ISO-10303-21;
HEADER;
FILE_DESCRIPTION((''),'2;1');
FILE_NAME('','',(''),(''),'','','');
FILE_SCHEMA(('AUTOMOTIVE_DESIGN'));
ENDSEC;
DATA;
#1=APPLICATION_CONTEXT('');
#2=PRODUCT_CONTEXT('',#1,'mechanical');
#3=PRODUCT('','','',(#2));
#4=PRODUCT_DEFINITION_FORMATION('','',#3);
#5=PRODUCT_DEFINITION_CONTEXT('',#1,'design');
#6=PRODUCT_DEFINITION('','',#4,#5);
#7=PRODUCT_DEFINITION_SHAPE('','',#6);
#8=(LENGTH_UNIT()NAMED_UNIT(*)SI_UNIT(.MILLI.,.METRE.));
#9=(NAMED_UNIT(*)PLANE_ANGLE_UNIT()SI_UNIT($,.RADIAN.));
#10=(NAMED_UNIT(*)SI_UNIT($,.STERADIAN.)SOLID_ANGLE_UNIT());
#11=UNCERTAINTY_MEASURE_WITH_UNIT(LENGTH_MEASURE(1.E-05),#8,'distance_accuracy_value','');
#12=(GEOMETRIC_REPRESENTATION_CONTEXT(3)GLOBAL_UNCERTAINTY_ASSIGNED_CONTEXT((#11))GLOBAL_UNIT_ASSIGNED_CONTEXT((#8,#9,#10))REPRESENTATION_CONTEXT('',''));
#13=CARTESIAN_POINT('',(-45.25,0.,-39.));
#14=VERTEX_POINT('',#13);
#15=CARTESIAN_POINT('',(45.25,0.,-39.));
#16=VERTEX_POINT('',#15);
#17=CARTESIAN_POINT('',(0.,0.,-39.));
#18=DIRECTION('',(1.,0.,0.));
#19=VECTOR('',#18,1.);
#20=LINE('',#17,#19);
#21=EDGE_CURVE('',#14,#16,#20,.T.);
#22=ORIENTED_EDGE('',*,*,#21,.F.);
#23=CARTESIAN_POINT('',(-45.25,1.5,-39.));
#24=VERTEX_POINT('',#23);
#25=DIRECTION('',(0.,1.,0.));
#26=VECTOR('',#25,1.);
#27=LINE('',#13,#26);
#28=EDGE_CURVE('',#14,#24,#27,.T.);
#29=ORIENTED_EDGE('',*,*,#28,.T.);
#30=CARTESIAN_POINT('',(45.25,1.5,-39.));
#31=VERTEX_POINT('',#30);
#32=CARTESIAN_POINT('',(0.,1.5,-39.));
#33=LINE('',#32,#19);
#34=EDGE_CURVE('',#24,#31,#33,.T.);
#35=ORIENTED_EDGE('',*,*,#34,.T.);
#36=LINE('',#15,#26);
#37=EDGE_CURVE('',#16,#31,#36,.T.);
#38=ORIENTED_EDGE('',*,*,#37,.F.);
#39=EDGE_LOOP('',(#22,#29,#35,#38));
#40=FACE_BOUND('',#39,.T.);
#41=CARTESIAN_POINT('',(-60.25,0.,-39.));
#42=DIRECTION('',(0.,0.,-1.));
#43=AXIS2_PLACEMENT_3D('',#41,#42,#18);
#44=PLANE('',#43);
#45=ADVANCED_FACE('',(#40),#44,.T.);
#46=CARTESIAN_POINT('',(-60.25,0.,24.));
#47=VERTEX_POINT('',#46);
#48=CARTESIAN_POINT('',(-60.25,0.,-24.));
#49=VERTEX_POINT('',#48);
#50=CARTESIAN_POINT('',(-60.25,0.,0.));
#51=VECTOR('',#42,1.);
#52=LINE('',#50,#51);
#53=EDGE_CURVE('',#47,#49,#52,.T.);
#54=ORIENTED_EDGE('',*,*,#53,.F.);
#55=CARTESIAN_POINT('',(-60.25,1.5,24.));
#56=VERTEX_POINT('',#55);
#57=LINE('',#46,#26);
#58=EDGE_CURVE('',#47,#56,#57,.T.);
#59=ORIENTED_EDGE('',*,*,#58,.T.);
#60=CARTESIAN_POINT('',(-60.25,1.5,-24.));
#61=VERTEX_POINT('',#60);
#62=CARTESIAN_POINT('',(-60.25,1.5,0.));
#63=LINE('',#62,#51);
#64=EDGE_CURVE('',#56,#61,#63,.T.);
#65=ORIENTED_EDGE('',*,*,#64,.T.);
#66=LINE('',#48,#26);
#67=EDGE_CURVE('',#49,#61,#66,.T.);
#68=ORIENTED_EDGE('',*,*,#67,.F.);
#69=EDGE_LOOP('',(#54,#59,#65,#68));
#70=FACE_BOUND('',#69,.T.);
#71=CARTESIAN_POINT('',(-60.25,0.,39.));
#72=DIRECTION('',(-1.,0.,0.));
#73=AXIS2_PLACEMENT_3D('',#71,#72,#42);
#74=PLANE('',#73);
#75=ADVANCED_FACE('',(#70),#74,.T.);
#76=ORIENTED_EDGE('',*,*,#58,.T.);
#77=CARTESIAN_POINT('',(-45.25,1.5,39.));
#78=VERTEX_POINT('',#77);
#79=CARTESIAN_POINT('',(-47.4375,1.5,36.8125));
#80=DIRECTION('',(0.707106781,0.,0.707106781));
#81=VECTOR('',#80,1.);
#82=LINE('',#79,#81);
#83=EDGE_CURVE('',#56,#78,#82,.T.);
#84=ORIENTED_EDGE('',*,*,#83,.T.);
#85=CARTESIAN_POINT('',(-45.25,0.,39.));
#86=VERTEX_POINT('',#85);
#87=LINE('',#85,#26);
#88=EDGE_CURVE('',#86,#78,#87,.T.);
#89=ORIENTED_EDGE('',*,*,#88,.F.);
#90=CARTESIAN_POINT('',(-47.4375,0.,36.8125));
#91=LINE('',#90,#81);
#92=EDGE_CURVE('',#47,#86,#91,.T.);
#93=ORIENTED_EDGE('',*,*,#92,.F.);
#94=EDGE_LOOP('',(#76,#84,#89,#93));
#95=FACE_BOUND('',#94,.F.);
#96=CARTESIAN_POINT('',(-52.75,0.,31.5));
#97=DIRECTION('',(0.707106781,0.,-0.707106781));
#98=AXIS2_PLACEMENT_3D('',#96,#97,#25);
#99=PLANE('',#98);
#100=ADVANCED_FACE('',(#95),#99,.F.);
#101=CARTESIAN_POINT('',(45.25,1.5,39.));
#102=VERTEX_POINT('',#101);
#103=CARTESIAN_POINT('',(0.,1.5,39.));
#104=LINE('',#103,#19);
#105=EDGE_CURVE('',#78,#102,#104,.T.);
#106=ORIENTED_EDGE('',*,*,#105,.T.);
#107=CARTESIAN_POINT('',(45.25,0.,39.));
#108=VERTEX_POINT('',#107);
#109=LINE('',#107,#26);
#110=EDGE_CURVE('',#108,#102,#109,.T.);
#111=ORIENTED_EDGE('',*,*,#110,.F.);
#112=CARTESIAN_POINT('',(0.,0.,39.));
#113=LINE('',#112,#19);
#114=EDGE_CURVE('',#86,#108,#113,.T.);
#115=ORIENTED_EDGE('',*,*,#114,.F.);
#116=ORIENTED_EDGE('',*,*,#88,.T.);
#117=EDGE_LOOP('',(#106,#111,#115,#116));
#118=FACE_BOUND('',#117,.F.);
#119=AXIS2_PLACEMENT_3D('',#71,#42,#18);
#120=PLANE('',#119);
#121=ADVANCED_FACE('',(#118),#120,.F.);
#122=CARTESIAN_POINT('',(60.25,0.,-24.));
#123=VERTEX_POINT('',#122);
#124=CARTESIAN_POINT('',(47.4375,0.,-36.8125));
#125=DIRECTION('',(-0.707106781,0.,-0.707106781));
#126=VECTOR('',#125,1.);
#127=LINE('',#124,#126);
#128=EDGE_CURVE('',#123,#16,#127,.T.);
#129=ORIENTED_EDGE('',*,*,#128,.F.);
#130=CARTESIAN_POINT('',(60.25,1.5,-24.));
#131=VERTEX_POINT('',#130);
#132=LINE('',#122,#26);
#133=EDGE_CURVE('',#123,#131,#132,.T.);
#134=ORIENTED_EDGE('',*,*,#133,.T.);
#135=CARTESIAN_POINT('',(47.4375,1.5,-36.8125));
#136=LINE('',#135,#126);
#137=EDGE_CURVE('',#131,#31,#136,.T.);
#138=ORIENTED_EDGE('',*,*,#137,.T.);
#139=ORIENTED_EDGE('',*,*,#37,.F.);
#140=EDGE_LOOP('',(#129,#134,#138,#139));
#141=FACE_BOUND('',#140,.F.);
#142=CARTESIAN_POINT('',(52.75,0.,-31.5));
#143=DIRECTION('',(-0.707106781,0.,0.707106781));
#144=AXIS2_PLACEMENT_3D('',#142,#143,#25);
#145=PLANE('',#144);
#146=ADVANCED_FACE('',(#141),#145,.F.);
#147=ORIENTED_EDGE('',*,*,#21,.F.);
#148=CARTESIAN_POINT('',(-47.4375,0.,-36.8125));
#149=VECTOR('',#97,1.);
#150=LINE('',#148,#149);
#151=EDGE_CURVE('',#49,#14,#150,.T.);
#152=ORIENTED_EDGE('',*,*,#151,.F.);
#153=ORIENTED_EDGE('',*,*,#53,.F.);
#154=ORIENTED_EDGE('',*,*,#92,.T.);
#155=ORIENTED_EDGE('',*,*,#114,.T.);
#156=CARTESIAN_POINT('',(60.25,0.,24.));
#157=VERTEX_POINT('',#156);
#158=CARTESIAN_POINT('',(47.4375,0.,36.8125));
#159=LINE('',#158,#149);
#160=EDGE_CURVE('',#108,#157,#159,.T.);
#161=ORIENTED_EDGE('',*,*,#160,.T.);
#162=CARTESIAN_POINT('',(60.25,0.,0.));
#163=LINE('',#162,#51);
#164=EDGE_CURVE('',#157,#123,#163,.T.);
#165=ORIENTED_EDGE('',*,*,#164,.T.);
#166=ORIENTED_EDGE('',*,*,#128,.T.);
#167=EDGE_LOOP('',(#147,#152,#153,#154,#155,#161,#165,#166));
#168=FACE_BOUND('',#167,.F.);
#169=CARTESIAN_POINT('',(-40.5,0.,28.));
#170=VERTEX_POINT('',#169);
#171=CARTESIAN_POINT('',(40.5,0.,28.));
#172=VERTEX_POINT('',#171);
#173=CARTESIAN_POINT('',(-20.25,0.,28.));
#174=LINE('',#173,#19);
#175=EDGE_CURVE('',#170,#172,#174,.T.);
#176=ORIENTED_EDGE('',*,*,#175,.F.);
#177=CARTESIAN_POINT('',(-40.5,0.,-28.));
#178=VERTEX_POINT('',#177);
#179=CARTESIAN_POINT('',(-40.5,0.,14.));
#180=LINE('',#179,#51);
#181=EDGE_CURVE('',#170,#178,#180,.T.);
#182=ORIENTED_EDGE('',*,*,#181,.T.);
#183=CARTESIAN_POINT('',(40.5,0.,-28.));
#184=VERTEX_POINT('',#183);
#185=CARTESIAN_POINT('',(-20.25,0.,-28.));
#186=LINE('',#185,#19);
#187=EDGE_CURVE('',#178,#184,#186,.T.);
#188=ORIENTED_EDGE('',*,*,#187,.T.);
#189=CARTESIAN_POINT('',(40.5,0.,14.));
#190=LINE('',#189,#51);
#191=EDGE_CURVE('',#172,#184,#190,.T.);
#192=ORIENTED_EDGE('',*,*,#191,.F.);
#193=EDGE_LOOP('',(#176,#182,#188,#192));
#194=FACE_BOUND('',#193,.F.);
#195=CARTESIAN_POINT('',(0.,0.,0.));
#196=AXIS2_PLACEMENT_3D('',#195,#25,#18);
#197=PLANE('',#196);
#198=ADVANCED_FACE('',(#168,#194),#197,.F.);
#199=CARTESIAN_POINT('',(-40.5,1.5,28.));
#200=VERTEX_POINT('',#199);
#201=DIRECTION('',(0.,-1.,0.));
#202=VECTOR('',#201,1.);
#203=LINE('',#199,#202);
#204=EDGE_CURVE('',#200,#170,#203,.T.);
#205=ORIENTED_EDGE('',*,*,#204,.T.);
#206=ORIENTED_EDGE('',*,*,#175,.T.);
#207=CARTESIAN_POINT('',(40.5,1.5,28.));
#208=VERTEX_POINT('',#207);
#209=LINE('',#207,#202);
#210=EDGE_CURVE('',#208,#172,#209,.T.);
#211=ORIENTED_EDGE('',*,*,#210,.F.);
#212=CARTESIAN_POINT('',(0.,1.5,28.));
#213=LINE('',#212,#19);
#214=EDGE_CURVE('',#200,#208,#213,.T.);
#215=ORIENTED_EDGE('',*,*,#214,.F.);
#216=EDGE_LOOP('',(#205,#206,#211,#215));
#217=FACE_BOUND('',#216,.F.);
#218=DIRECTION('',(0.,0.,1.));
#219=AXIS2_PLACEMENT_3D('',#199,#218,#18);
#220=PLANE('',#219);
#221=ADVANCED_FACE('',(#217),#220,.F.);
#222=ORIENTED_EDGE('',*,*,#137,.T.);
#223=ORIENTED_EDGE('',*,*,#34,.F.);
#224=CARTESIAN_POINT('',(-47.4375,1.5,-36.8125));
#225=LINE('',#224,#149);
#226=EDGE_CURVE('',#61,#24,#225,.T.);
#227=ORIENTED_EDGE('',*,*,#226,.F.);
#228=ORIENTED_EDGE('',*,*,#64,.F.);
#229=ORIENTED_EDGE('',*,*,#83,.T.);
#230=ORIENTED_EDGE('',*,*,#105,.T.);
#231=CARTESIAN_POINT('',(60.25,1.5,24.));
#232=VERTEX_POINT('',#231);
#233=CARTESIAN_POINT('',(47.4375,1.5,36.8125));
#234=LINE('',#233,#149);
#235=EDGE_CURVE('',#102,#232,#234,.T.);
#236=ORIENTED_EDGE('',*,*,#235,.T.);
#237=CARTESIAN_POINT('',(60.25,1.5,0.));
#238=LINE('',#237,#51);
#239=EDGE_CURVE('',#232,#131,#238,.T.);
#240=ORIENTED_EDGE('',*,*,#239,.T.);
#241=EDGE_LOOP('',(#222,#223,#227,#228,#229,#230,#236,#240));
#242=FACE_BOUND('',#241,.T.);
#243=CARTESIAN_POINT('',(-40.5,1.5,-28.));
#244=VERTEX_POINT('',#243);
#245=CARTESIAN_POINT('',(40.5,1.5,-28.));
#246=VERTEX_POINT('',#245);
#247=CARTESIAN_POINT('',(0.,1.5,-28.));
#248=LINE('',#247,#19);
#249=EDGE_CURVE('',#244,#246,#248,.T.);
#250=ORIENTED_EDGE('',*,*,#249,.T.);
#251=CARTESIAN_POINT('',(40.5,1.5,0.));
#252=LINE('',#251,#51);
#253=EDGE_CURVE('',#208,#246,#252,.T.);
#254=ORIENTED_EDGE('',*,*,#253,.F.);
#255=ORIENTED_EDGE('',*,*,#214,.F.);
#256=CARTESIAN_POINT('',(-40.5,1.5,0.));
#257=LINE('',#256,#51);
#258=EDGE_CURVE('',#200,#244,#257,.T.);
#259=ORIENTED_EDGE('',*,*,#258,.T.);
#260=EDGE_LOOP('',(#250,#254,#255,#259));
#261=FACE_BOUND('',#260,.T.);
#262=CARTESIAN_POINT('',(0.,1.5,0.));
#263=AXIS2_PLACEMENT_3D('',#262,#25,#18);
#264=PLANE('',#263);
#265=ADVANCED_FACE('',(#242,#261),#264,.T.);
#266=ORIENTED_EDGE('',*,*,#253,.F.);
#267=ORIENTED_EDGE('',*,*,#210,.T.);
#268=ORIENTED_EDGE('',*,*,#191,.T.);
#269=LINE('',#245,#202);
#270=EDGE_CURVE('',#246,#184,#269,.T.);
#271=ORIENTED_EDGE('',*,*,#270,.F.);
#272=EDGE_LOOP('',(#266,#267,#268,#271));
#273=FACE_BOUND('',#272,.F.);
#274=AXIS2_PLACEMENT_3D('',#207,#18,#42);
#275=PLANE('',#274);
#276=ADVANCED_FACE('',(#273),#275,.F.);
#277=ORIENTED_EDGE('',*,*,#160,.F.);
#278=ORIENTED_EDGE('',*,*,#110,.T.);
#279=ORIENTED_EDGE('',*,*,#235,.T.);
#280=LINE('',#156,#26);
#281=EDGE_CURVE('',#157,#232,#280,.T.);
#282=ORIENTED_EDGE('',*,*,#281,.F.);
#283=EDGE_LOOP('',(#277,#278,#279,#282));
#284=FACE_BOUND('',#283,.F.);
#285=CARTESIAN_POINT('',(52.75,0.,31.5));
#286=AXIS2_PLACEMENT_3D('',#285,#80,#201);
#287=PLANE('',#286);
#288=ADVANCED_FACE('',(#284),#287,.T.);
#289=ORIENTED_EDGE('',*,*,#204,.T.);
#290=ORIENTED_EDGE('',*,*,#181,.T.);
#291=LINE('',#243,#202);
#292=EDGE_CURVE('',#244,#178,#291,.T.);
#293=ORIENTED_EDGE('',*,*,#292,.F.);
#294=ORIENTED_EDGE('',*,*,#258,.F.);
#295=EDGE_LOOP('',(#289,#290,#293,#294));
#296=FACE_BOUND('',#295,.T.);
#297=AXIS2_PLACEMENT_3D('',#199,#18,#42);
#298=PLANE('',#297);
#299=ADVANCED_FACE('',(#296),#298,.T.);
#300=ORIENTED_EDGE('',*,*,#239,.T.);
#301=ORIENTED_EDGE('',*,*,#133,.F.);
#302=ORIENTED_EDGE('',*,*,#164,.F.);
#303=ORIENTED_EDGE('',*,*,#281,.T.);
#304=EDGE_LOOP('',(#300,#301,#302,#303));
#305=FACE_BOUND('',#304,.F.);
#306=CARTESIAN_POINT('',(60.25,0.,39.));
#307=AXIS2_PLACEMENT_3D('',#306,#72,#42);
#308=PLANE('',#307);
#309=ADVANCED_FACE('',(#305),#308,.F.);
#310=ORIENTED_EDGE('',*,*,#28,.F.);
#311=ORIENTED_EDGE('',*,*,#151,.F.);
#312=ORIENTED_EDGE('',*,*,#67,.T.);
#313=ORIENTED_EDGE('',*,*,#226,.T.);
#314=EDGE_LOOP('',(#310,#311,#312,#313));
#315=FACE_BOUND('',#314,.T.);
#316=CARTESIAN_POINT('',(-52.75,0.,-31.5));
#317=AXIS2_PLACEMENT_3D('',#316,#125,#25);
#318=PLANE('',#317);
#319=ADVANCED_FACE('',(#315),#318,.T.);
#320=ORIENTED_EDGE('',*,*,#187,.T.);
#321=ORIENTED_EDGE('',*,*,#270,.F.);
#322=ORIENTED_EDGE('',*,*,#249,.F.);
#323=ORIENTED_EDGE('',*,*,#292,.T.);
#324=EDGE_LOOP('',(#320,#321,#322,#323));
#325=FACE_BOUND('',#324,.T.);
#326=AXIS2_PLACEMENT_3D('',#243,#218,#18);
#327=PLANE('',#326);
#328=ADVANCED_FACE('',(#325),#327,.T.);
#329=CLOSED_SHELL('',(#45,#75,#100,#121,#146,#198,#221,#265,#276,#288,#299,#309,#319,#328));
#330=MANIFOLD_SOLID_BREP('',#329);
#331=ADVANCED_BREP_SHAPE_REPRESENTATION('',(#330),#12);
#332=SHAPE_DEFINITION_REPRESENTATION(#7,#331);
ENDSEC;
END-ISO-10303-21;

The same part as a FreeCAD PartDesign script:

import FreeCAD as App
import Part
import Sketcher

V = App.Vector


def edges_at(feature, points):
    """Names of the edges that pass closest to the given points."""
    edges = feature.Shape.Edges
    near = lambda p: min(range(len(edges)), key=lambda i: edges[i].distToShape(Part.Vertex(*p))[0])
    return sorted({f"Edge{near(p) + 1}" for p in points})


def add_polygon(sketch, points):
    """Adds a closed chain of lines whose ends are joined by coincident constraints."""
    first, n = sketch.GeometryCount, len(points)
    for a, b in zip(points, points[1:] + points[:1]):
        sketch.addGeometry(Part.LineSegment(App.Vector(*a, 0), App.Vector(*b, 0)), False)
    for i in range(n):
        sketch.addConstraint(Sketcher.Constraint("Coincident", first + i, 2, first + (i + 1) % n, 1))

doc = App.newDocument("Part")
params = doc.addObject("Spreadsheet::Sheet", "Params")
for row, (alias, value) in enumerate([
    ("sketch1_height", "78 mm"),
    ("sketch1_width", "120.5 mm"),
    ("pad1_length", "1.5 mm"),
    ("chamfer_size", "15 mm"),
    ("sketch2_width", "81 mm"),
    ("sketch2_height", "56 mm"),
    ("pocket1_length", "2 mm"),
], start=1):
    params.set(f"A{row}", alias)
    params.set(f"B{row}", "=" + value)
    params.setAlias(f"B{row}", alias)

body = doc.addObject("PartDesign::Body", "Body")

# Sketch on XZ plane
sketch1 = doc.addObject("Sketcher::SketchObject", "Sketch")
body.addObject(sketch1)
sketch1.AttachmentSupport = (doc.XZ_Plane, [""])
sketch1.MapMode = "FlatFace"
add_polygon(sketch1, [(-60.25, -39), (-60.25, 39), (60.25, 39), (60.25, -39)])  # lines 0-3
sketch1.addConstraint(Sketcher.Constraint("Vertical", 0))
sketch1.addConstraint(Sketcher.Constraint("Horizontal", 1))
sketch1.addConstraint(Sketcher.Constraint("Vertical", 2))
sketch1.addConstraint(Sketcher.Constraint("Horizontal", 3))
sketch1.addConstraint(Sketcher.Constraint("Symmetric", 0, 2, 2, 2, -1, 1))
sketch1.addConstraint(Sketcher.Constraint("DistanceY", 0, 1, 0, 2, 78.0))
sketch1.addConstraint(Sketcher.Constraint("DistanceX", 1, 1, 1, 2, 120.5))
sketch1.setExpression("Constraints[9]", "Params.sketch1_height")
sketch1.setExpression("Constraints[10]", "Params.sketch1_width")
pad1 = doc.addObject("PartDesign::Pad", "Pad")
body.addObject(pad1)
pad1.Profile = sketch1
pad1.setExpression("Length", "Params.pad1_length")
pad1.Reversed = True
doc.recompute()

chamfer = doc.addObject("PartDesign::Chamfer", "Chamfer")
body.addObject(chamfer)
chamfer.Base = (pad1, edges_at(pad1, [
    (60.25, 0.75, 39),
    (-60.25, 0.75, 39),
    (-60.25, 0.75, -39),
    (60.25, 0.75, -39),
]))
chamfer.setExpression("Size", "Params.chamfer_size")

# Sketch on XZ plane
sketch2 = doc.addObject("Sketcher::SketchObject", "Sketch001")
body.addObject(sketch2)
sketch2.AttachmentSupport = (doc.XZ_Plane, [""])
sketch2.MapMode = "FlatFace"
sketch2.AttachmentOffset = App.Placement(V(0, 0, -1.5), App.Rotation())
add_polygon(sketch2, [(-40.5, -28), (-40.5, 28), (40.5, 28), (40.5, -28)])  # lines 0-3
sketch2.addConstraint(Sketcher.Constraint("Vertical", 0))
sketch2.addConstraint(Sketcher.Constraint("Horizontal", 1))
sketch2.addConstraint(Sketcher.Constraint("Vertical", 2))
sketch2.addConstraint(Sketcher.Constraint("Horizontal", 3))
sketch2.addConstraint(Sketcher.Constraint("Symmetric", 0, 2, 2, 2, -1, 1))
sketch2.addConstraint(Sketcher.Constraint("DistanceX", 1, 1, 1, 2, 81.0))
sketch2.addConstraint(Sketcher.Constraint("DistanceY", 0, 1, 0, 2, 56.0))
sketch2.setExpression("Constraints[9]", "Params.sketch2_width")
sketch2.setExpression("Constraints[10]", "Params.sketch2_height")
pocket1 = doc.addObject("PartDesign::Pocket", "Pocket")
body.addObject(pocket1)
pocket1.Profile = sketch2
pocket1.setExpression("Length", "Params.pocket1_length")
pocket1.Reversed = True

doc.recompute()
